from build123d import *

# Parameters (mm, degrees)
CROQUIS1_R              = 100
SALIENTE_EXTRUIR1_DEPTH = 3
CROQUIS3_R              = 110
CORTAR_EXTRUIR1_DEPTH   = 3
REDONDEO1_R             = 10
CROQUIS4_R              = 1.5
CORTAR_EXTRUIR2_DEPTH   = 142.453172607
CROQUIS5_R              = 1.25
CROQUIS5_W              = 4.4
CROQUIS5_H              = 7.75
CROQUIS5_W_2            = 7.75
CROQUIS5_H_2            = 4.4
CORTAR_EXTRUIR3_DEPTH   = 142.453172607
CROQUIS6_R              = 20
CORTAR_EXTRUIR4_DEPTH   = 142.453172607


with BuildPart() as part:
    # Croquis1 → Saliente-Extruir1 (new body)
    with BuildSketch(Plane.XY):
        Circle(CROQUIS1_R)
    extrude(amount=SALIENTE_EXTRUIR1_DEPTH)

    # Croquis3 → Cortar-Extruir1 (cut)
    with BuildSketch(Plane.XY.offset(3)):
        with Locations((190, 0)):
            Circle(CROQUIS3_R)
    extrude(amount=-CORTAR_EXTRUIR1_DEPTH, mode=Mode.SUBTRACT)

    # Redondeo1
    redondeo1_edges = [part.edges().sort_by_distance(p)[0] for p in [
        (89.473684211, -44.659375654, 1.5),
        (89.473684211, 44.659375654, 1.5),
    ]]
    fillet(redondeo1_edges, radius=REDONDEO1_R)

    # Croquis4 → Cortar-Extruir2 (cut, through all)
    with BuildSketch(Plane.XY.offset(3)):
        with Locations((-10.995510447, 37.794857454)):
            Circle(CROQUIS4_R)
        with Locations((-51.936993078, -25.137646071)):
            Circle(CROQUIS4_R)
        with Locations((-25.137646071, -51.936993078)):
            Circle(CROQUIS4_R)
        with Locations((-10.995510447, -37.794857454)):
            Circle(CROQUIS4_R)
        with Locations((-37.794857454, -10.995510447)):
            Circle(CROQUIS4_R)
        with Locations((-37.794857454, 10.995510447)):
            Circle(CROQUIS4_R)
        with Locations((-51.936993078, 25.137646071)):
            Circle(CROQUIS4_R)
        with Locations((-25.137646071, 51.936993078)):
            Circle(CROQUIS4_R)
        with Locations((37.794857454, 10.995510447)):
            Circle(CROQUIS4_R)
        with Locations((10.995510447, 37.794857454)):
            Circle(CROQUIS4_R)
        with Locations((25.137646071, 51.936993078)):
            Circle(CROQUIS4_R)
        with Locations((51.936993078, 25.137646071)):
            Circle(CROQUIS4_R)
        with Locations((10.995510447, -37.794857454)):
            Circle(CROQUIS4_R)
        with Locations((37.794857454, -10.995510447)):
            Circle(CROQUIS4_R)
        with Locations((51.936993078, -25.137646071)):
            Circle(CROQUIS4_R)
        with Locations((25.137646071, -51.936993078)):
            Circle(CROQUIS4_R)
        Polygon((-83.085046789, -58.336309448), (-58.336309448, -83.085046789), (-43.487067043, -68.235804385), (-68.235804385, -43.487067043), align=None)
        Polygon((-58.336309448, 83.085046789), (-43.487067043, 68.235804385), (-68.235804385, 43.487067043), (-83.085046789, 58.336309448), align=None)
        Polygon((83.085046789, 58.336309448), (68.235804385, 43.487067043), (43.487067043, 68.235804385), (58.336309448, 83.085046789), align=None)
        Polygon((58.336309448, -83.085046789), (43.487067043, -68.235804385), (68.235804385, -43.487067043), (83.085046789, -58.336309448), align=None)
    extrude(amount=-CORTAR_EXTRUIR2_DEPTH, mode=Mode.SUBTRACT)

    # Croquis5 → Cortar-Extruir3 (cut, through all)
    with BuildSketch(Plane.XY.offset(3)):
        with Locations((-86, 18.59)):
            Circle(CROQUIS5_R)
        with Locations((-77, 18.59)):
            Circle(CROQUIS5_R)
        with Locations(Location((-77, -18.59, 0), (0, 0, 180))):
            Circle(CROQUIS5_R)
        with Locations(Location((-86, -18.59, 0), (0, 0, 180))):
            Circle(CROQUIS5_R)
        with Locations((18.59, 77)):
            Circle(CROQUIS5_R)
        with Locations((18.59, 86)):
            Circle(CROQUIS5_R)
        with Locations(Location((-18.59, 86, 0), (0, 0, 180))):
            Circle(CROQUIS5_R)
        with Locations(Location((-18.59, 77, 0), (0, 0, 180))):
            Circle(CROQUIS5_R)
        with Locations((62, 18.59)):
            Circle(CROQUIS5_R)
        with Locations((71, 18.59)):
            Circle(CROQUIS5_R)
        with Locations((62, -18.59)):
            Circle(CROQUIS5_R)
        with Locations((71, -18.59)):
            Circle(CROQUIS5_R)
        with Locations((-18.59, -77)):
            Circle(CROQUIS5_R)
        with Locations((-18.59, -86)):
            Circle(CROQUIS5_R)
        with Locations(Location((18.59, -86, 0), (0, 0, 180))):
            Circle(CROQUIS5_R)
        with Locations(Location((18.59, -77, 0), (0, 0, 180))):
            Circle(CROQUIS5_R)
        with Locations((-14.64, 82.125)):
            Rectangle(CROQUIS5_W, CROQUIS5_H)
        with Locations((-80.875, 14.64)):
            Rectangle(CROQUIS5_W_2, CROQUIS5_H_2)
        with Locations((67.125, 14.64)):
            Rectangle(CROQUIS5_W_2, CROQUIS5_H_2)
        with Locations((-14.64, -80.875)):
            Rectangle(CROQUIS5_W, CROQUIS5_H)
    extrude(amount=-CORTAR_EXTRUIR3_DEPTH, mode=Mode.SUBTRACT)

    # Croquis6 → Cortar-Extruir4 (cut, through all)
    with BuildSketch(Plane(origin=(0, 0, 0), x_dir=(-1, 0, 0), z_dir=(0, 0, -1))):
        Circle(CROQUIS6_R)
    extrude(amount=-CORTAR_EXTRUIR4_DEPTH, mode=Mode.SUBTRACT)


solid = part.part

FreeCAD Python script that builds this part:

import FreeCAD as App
import Part
import Sketcher

V = App.Vector
Q = App.Units.Quantity


def edges_at(feature, points):
    """Names of the edges that pass closest to the given points."""
    edges = feature.Shape.Edges
    near = lambda p: min(range(len(edges)), key=lambda i: edges[i].distToShape(Part.Vertex(*p))[0])
    return sorted({f"Edge{near(p) + 1}" for p in points})


def add_polygon(sketch, points):
    """Adds a closed chain of lines whose ends are joined by coincident constraints."""
    first, n = sketch.GeometryCount, len(points)
    for a, b in zip(points, points[1:] + points[:1]):
        sketch.addGeometry(Part.LineSegment(App.Vector(*a, 0), App.Vector(*b, 0)), False)
    for i in range(n):
        sketch.addConstraint(Sketcher.Constraint("Coincident", first + i, 2, first + (i + 1) % n, 1))

doc = App.newDocument("Part")
body = doc.addObject("PartDesign::Body", "Body")

# Sketch on XY plane
sketch1 = doc.addObject("Sketcher::SketchObject", "Sketch")
body.addObject(sketch1)
sketch1.AttachmentSupport = (doc.XY_Plane, [""])
sketch1.MapMode = "FlatFace"
sketch1.addGeometry(Part.Circle(V(0, 0, 0), V(0, 0, 1), 100), False)
sketch1.addConstraint(Sketcher.Constraint("Coincident", 0, 3, -1, 1))
sketch1.addConstraint(Sketcher.Constraint("Diameter", 0, Q("200 mm")))
pad1 = doc.addObject("PartDesign::Pad", "Pad")
body.addObject(pad1)
pad1.Profile = sketch1
pad1.Length = 3

# Sketch on XY plane
sketch2 = doc.addObject("Sketcher::SketchObject", "Sketch001")
body.addObject(sketch2)
sketch2.AttachmentSupport = (doc.XY_Plane, [""])
sketch2.MapMode = "FlatFace"
sketch2.AttachmentOffset = App.Placement(V(0, 0, 3), App.Rotation())
sketch2.addGeometry(Part.Circle(V(190, 0, 0), V(0, 0, 1), 110), False)
sketch2.addConstraint(Sketcher.Constraint("PointOnObject", 0, 3, -1))
sketch2.addConstraint(Sketcher.Constraint("Diameter", 0, Q("220 mm")))
sketch2.addConstraint(Sketcher.Constraint("DistanceX", -1, 1, 0, 3, Q("190 mm")))
pocket1 = doc.addObject("PartDesign::Pocket", "Pocket")
body.addObject(pocket1)
pocket1.Profile = sketch2
pocket1.Length = 3
doc.recompute()

fillet = doc.addObject("PartDesign::Fillet", "Fillet")
body.addObject(fillet)
fillet.Base = (pocket1, edges_at(pocket1, [(89.474, -44.659, 1.5), (89.474, 44.659, 1.5)]))
fillet.Radius = 10

# Sketch on XY plane
sketch3 = doc.addObject("Sketcher::SketchObject", "Sketch002")
body.addObject(sketch3)
sketch3.AttachmentSupport = (doc.XY_Plane, [""])
sketch3.MapMode = "FlatFace"
sketch3.AttachmentOffset = App.Placement(V(0, 0, 3), App.Rotation())
sketch3.addGeometry(Part.Circle(V(-11, 37.8, 0), V(0, 0, 1), 1.5), False)  # 0
sketch3.addGeometry(Part.Circle(V(-51.9, -25.1, 0), V(0, 0, 1), 1.5), False)  # 1
sketch3.addGeometry(Part.Circle(V(-25.1, -51.9, 0), V(0, 0, 1), 1.5), False)  # 2
sketch3.addGeometry(Part.Circle(V(-11, -37.8, 0), V(0, 0, 1), 1.5), False)  # 3
sketch3.addGeometry(Part.Circle(V(-37.8, -11, 0), V(0, 0, 1), 1.5), False)  # 4
sketch3.addGeometry(Part.Circle(V(-37.8, 11, 0), V(0, 0, 1), 1.5), False)  # 5
sketch3.addGeometry(Part.Circle(V(-51.9, 25.1, 0), V(0, 0, 1), 1.5), False)  # 6
sketch3.addGeometry(Part.Circle(V(-25.1, 51.9, 0), V(0, 0, 1), 1.5), False)  # 7
sketch3.addGeometry(Part.Circle(V(37.8, 11, 0), V(0, 0, 1), 1.5), False)  # 8
sketch3.addGeometry(Part.Circle(V(11, 37.8, 0), V(0, 0, 1), 1.5), False)  # 9
sketch3.addGeometry(Part.Circle(V(25.1, 51.9, 0), V(0, 0, 1), 1.5), False)  # 10
sketch3.addGeometry(Part.Circle(V(51.9, 25.1, 0), V(0, 0, 1), 1.5), False)  # 11
sketch3.addGeometry(Part.Circle(V(11, -37.8, 0), V(0, 0, 1), 1.5), False)  # 12
sketch3.addGeometry(Part.Circle(V(37.8, -11, 0), V(0, 0, 1), 1.5), False)  # 13
sketch3.addGeometry(Part.Circle(V(51.9, -25.1, 0), V(0, 0, 1), 1.5), False)  # 14
sketch3.addGeometry(Part.Circle(V(25.1, -51.9, 0), V(0, 0, 1), 1.5), False)  # 15
add_polygon(sketch3, [(-83.1, -58.3), (-58.3, -83.1), (-43.5, -68.2), (-68.2, -43.5)])  # lines 16-19
add_polygon(sketch3, [(-43.5, 68.2), (-58.3, 83.1), (-83.1, 58.3), (-68.2, 43.5)])  # lines 20-23
add_polygon(sketch3, [(68.2, 43.5), (83.1, 58.3), (58.3, 83.1), (43.5, 68.2)])  # lines 24-27
add_polygon(sketch3, [(43.5, -68.2), (58.3, -83.1), (83.1, -58.3), (68.2, -43.5)])  # lines 28-31
sketch3.addConstraint(Sketcher.Constraint("Equal", 0, 1))
sketch3.addConstraint(Sketcher.Constraint("Equal", 1, 2))
sketch3.addConstraint(Sketcher.Constraint("Equal", 2, 3))
sketch3.addConstraint(Sketcher.Constraint("Equal", 3, 4))
sketch3.addConstraint(Sketcher.Constraint("Equal", 4, 5))
sketch3.addConstraint(Sketcher.Constraint("Equal", 5, 6))
sketch3.addConstraint(Sketcher.Constraint("Equal", 6, 7))
sketch3.addConstraint(Sketcher.Constraint("Equal", 7, 8))
sketch3.addConstraint(Sketcher.Constraint("Equal", 8, 9))
sketch3.addConstraint(Sketcher.Constraint("Equal", 9, 10))
sketch3.addConstraint(Sketcher.Constraint("Equal", 10, 11))
sketch3.addConstraint(Sketcher.Constraint("Equal", 11, 12))
sketch3.addConstraint(Sketcher.Constraint("Equal", 12, 13))
sketch3.addConstraint(Sketcher.Constraint("Equal", 13, 14))
sketch3.addConstraint(Sketcher.Constraint("Equal", 14, 15))
sketch3.addConstraint(Sketcher.Constraint("Symmetric", 4, 3, 8, 3, -1, 1))
sketch3.addConstraint(Sketcher.Constraint("Symmetric", 3, 3, 9, 3, -1, 1))
sketch3.addConstraint(Sketcher.Constraint("Symmetric", 2, 3, 10, 3, -1, 1))
sketch3.addConstraint(Sketcher.Constraint("Symmetric", 1, 3, 11, 3, -1, 1))
sketch3.addConstraint(Sketcher.Constraint("Symmetric", 0, 3, 12, 3, -1, 1))
sketch3.addConstraint(Sketcher.Constraint("Symmetric", 5, 3, 13, 3, -1, 1))
sketch3.addConstraint(Sketcher.Constraint("Symmetric", 6, 3, 14, 3, -1, 1))
sketch3.addConstraint(Sketcher.Constraint("Symmetric", 7, 3, 15, 3, -1, 1))
sketch3.addConstraint(Sketcher.Constraint("Symmetric", 19, 2, 24, 2, -1, 1))
sketch3.addConstraint(Sketcher.Constraint("Symmetric", 16, 2, 25, 2, -1, 1))
sketch3.addConstraint(Sketcher.Constraint("Symmetric", 17, 2, 26, 2, -1, 1))
sketch3.addConstraint(Sketcher.Constraint("Symmetric", 18, 2, 27, 2, -1, 1))
sketch3.addConstraint(Sketcher.Constraint("Symmetric", 20, 2, 28, 2, -1, 1))
sketch3.addConstraint(Sketcher.Constraint("Symmetric", 21, 2, 29, 2, -1, 1))
sketch3.addConstraint(Sketcher.Constraint("Symmetric", 22, 2, 30, 2, -1, 1))
sketch3.addConstraint(Sketcher.Constraint("Symmetric", 23, 2, 31, 2, -1, 1))
sketch3.addConstraint(Sketcher.Constraint("Symmetric", 5, 3, 8, 3, -2))
sketch3.addConstraint(Sketcher.Constraint("Symmetric", 0, 3, 9, 3, -2))
sketch3.addConstraint(Sketcher.Constraint("Symmetric", 7, 3, 10, 3, -2))
sketch3.addConstraint(Sketcher.Constraint("Symmetric", 6, 3, 11, 3, -2))
sketch3.addConstraint(Sketcher.Constraint("Symmetric", 21, 2, 24, 2, -2))
sketch3.addConstraint(Sketcher.Constraint("Symmetric", 20, 2, 25, 2, -2))
sketch3.addConstraint(Sketcher.Constraint("Symmetric", 23, 2, 26, 2, -2))
sketch3.addConstraint(Sketcher.Constraint("Symmetric", 22, 2, 27, 2, -2))
sketch3.addConstraint(Sketcher.Constraint("Perpendicular", 16, 17))
sketch3.addConstraint(Sketcher.Constraint("Perpendicular", 17, 18))
sketch3.addConstraint(Sketcher.Constraint("Perpendicular", 18, 19))
sketch3.addConstraint(Sketcher.Constraint("Perpendicular", 19, 20))
sketch3.addConstraint(Sketcher.Constraint("Diameter", 0, Q("3 mm")))
sketch3.addConstraint(Sketcher.Constraint("Distance", 16, Q("35 mm")))
sketch3.addConstraint(Sketcher.Constraint("Distance", 17, Q("21 mm")))
sketch3.addConstraint(Sketcher.Constraint("DistanceY", 16, 2, 1, 3, Q("57.947401 mm")))
sketch3.addConstraint(Sketcher.Constraint("DistanceX", 16, 2, 3, 3, Q("47.340799 mm")))
sketch3.addConstraint(Sketcher.Constraint("DistanceX", 19, 2, 2, 3, Q("57.947401 mm")))
sketch3.addConstraint(Sketcher.Constraint("DistanceY", 5, 3, 21, 2, Q("47.340799 mm")))
sketch3.addConstraint(Sketcher.Constraint("DistanceX", 0, 3, -1, 1, Q("10.99551 mm")))
sketch3.addConstraint(Sketcher.Constraint("DistanceY", 4, 3, -1, 1, Q("10.99551 mm")))
sketch3.addConstraint(Sketcher.Constraint("DistanceY", 2, 3, 0, 3, Q("89.731851 mm")))
sketch3.addConstraint(Sketcher.Constraint("DistanceY", 3, 3, 1, 3, Q("12.657211 mm")))
sketch3.addConstraint(Sketcher.Constraint("DistanceX", 4, 3, 2, 3, Q("12.657211 mm")))
sketch3.addConstraint(Sketcher.Constraint("DistanceX", 7, 3, 11, 3, Q("77.074639 mm")))
pocket2 = doc.addObject("PartDesign::Pocket", "Pocket001")
body.addObject(pocket2)
pocket2.Profile = sketch3
pocket2.Type = "ThroughAll"

# Sketch on XY plane
sketch4 = doc.addObject("Sketcher::SketchObject", "Sketch003")
body.addObject(sketch4)
sketch4.AttachmentSupport = (doc.XY_Plane, [""])
sketch4.MapMode = "FlatFace"
sketch4.AttachmentOffset = App.Placement(V(0, 0, 3), App.Rotation())
sketch4.addGeometry(Part.Circle(V(-86, 18.6, 0), V(0, 0, 1), 1.2), False)  # 0
sketch4.addGeometry(Part.Circle(V(-77, 18.6, 0), V(0, 0, 1), 1.2), False)  # 1
sketch4.addGeometry(Part.Circle(V(-77, -18.6, 0), V(0, 0, 1), 1.2), False)  # 2
sketch4.addGeometry(Part.Circle(V(-86, -18.6, 0), V(0, 0, 1), 1.2), False)  # 3
sketch4.addGeometry(Part.Circle(V(18.6, 77, 0), V(0, 0, 1), 1.2), False)  # 4
sketch4.addGeometry(Part.Circle(V(18.6, 86, 0), V(0, 0, 1), 1.2), False)  # 5
sketch4.addGeometry(Part.Circle(V(-18.6, 86, 0), V(0, 0, 1), 1.2), False)  # 6
sketch4.addGeometry(Part.Circle(V(-18.6, 77, 0), V(0, 0, 1), 1.2), False)  # 7
sketch4.addGeometry(Part.Circle(V(62, 18.6, 0), V(0, 0, 1), 1.2), False)  # 8
sketch4.addGeometry(Part.Circle(V(71, 18.6, 0), V(0, 0, 1), 1.2), False)  # 9
sketch4.addGeometry(Part.Circle(V(62, -18.6, 0), V(0, 0, 1), 1.2), False)  # 10
sketch4.addGeometry(Part.Circle(V(71, -18.6, 0), V(0, 0, 1), 1.2), False)  # 11
sketch4.addGeometry(Part.Circle(V(-18.6, -77, 0), V(0, 0, 1), 1.2), False)  # 12
sketch4.addGeometry(Part.Circle(V(-18.6, -86, 0), V(0, 0, 1), 1.2), False)  # 13
sketch4.addGeometry(Part.Circle(V(18.6, -86, 0), V(0, 0, 1), 1.2), False)  # 14
sketch4.addGeometry(Part.Circle(V(18.6, -77, 0), V(0, 0, 1), 1.2), False)  # 15
add_polygon(sketch4, [(-16.8, 86), (-16.8, 78.2), (-12.4, 78.2), (-12.4, 86)])  # lines 16-19
add_polygon(sketch4, [(-84.8, 16.8), (-84.8, 12.4), (-77, 12.4), (-77, 16.8)])  # lines 20-23
add_polygon(sketch4, [(63.2, 16.8), (63.2, 12.4), (71, 12.4), (71, 16.8)])  # lines 24-27
add_polygon(sketch4, [(-16.8, -77), (-16.8, -84.8), (-12.4, -84.8), (-12.4, -77)])  # lines 28-31
sketch4.addConstraint(Sketcher.Constraint("Vertical", 16))
sketch4.addConstraint(Sketcher.Constraint("Horizontal", 17))
sketch4.addConstraint(Sketcher.Constraint("Vertical", 18))
sketch4.addConstraint(Sketcher.Constraint("Horizontal", 19))
sketch4.addConstraint(Sketcher.Constraint("Vertical", 20))
sketch4.addConstraint(Sketcher.Constraint("Horizontal", 21))
sketch4.addConstraint(Sketcher.Constraint("Vertical", 22))
sketch4.addConstraint(Sketcher.Constraint("Horizontal", 23))
sketch4.addConstraint(Sketcher.Constraint("Vertical", 24))
sketch4.addConstraint(Sketcher.Constraint("Horizontal", 25))
sketch4.addConstraint(Sketcher.Constraint("Vertical", 26))
sketch4.addConstraint(Sketcher.Constraint("Horizontal", 27))
sketch4.addConstraint(Sketcher.Constraint("Vertical", 28))
sketch4.addConstraint(Sketcher.Constraint("Horizontal", 29))
sketch4.addConstraint(Sketcher.Constraint("Vertical", 30))
sketch4.addConstraint(Sketcher.Constraint("Horizontal", 31))
sketch4.addConstraint(Sketcher.Constraint("Equal", 0, 1))
sketch4.addConstraint(Sketcher.Constraint("Equal", 1, 2))
sketch4.addConstraint(Sketcher.Constraint("Equal", 2, 3))
sketch4.addConstraint(Sketcher.Constraint("Equal", 3, 4))
sketch4.addConstraint(Sketcher.Constraint("Equal", 4, 5))
sketch4.addConstraint(Sketcher.Constraint("Equal", 5, 6))
sketch4.addConstraint(Sketcher.Constraint("Equal", 6, 7))
sketch4.addConstraint(Sketcher.Constraint("Equal", 7, 8))
sketch4.addConstraint(Sketcher.Constraint("Equal", 8, 9))
sketch4.addConstraint(Sketcher.Constraint("Equal", 9, 10))
sketch4.addConstraint(Sketcher.Constraint("Equal", 10, 11))
sketch4.addConstraint(Sketcher.Constraint("Equal", 11, 12))
sketch4.addConstraint(Sketcher.Constraint("Equal", 12, 13))
sketch4.addConstraint(Sketcher.Constraint("Equal", 13, 14))
sketch4.addConstraint(Sketcher.Constraint("Equal", 14, 15))
sketch4.addConstraint(Sketcher.Constraint("Symmetric", 4, 3, 12, 3, -1, 1))
sketch4.addConstraint(Sketcher.Constraint("Symmetric", 5, 3, 13, 3, -1, 1))
sketch4.addConstraint(Sketcher.Constraint("Symmetric", 6, 3, 14, 3, -1, 1))
sketch4.addConstraint(Sketcher.Constraint("Symmetric", 7, 3, 15, 3, -1, 1))
sketch4.addConstraint(Sketcher.Constraint("Symmetric", 5, 3, 6, 3, -2))
sketch4.addConstraint(Sketcher.Constraint("Symmetric", 4, 3, 7, 3, -2))
sketch4.addConstraint(Sketcher.Constraint("Symmetric", 1, 3, 2, 3, -1))
sketch4.addConstraint(Sketcher.Constraint("Symmetric", 0, 3, 3, 3, -1))
sketch4.addConstraint(Sketcher.Constraint("Symmetric", 8, 3, 10, 3, -1))
sketch4.addConstraint(Sketcher.Constraint("Symmetric", 9, 3, 11, 3, -1))
sketch4.addConstraint(Sketcher.Constraint("Horizontal", 0, 3, 1, 3))
sketch4.addConstraint(Sketcher.Constraint("Horizontal", 1, 3, 8, 3))
sketch4.addConstraint(Sketcher.Constraint("Horizontal", 8, 3, 9, 3))
sketch4.addConstraint(Sketcher.Constraint("Horizontal", 6, 3, 18, 2))
sketch4.addConstraint(Sketcher.Constraint("Horizontal", 21, 2, 24, 2))
sketch4.addConstraint(Sketcher.Constraint("Horizontal", 23, 2, 26, 2))
sketch4.addConstraint(Sketcher.Constraint("Horizontal", 15, 3, 30, 2))
sketch4.addConstraint(Sketcher.Constraint("Vertical", 4, 3, 5, 3))
sketch4.addConstraint(Sketcher.Constraint("Vertical", 2, 3, 21, 2))
sketch4.addConstraint(Sketcher.Constraint("Vertical", 11, 3, 25, 2))
sketch4.addConstraint(Sketcher.Constraint("Vertical", 19, 2, 28, 2))
sketch4.addConstraint(Sketcher.Constraint("Vertical", 18, 2, 29, 2))
sketch4.addConstraint(Sketcher.Constraint("Equal", 23, 25))
sketch4.addConstraint(Sketcher.Constraint("Equal", 27, 16))
sketch4.addConstraint(Sketcher.Constraint("Equal", 31, 20))
sketch4.addConstraint(Sketcher.Constraint("Equal", 18, 28))
sketch4.addConstraint(Sketcher.Constraint("Diameter", 0, Q("2.5 mm")))
sketch4.addConstraint(Sketcher.Constraint("DistanceX", 17, 1, 17, 2, Q("4.4 mm")))
sketch4.addConstraint(Sketcher.Constraint("DistanceX", 0, 3, -1, 1, Q("86 mm")))
sketch4.addConstraint(Sketcher.Constraint("DistanceX", 1, 3, -1, 1, Q("77 mm")))
sketch4.addConstraint(Sketcher.Constraint("DistanceY", -1, 1, 4, 3, Q("77 mm")))
sketch4.addConstraint(Sketcher.Constraint("DistanceY", -1, 1, 5, 3, Q("86 mm")))
sketch4.addConstraint(Sketcher.Constraint("DistanceX", -1, 1, 8, 3, Q("62 mm")))
sketch4.addConstraint(Sketcher.Constraint("DistanceX", -1, 1, 9, 3, Q("71 mm")))
sketch4.addConstraint(Sketcher.Constraint("DistanceX", 21, 1, 21, 2, Q("7.75 mm")))
sketch4.addConstraint(Sketcher.Constraint("DistanceY", -1, 1, 0, 3, Q("18.59 mm")))
sketch4.addConstraint(Sketcher.Constraint("DistanceX", -1, 1, 4, 3, Q("18.59 mm")))
sketch4.addConstraint(Sketcher.Constraint("DistanceX", 16, 2, -1, 1, Q("16.84 mm")))
sketch4.addConstraint(Sketcher.Constraint("DistanceY", -1, 1, 20, 2, Q("12.44 mm")))
pocket3 = doc.addObject("PartDesign::Pocket", "Pocket002")
body.addObject(pocket3)
pocket3.Profile = sketch4
pocket3.Type = "ThroughAll"

# Sketch on XY plane
sketch5 = doc.addObject("Sketcher::SketchObject", "Sketch004")
body.addObject(sketch5)
sketch5.AttachmentSupport = (doc.XY_Plane, [""])
sketch5.MapMode = "FlatFace"
sketch5.addGeometry(Part.Circle(V(0, 0, 0), V(0, 0, 1), 20), False)
sketch5.addConstraint(Sketcher.Constraint("Coincident", 0, 3, -1, 1))
sketch5.addConstraint(Sketcher.Constraint("Diameter", 0, Q("40 mm")))
pocket4 = doc.addObject("PartDesign::Pocket", "Pocket003")
body.addObject(pocket4)
pocket4.Profile = sketch5
pocket4.Type = "ThroughAll"
pocket4.Reversed = True

doc.recompute()
